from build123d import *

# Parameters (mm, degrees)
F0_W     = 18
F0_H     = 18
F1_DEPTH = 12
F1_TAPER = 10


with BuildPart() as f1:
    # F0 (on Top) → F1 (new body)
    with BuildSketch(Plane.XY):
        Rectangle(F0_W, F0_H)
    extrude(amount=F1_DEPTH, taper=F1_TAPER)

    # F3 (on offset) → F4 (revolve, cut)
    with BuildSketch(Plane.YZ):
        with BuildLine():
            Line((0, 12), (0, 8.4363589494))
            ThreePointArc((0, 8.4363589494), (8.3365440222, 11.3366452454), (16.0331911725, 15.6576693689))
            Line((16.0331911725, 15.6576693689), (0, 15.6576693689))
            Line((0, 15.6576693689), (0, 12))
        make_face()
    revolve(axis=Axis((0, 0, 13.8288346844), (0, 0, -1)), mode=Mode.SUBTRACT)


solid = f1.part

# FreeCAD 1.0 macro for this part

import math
import FreeCAD as App
import Part
import Sketcher
Q = App.Units.Quantity


def add_polygon(sketch, points):
    """Adds a closed chain of lines whose ends are joined by coincident constraints."""
    first, n = sketch.GeometryCount, len(points)
    for a, b in zip(points, points[1:] + points[:1]):
        sketch.addGeometry(Part.LineSegment(App.Vector(*a, 0), App.Vector(*b, 0)), False)
    for i in range(n):
        sketch.addConstraint(Sketcher.Constraint("Coincident", first + i, 2, first + (i + 1) % n, 1))

doc = App.newDocument("Part")
body = doc.addObject("PartDesign::Body", "Body")

# Sketch on XY plane
sketch1 = body.newObject("Sketcher::SketchObject", "Sketch")
sketch1.AttachmentSupport = (doc.getObject("XY_Plane"), [""])
sketch1.MapMode = "FlatFace"
add_polygon(sketch1, [(-9, 9), (-9, -9), (9, -9), (9, 9)])  # lines 0-3
sketch1.addConstraint(Sketcher.Constraint("Vertical", 0))
sketch1.addConstraint(Sketcher.Constraint("Horizontal", 1))
sketch1.addConstraint(Sketcher.Constraint("Vertical", 2))
sketch1.addConstraint(Sketcher.Constraint("Horizontal", 3))
sketch1.addConstraint(Sketcher.Constraint("Symmetric", 0, 2, 2, 2, -1, 1))
sketch1.addConstraint(Sketcher.Constraint("Equal", 3, 0))
sketch1.addConstraint(Sketcher.Constraint("DistanceX", 1, 1, 1, 2, Q("18 mm")))
pad1 = body.newObject("PartDesign::Pad", "Pad")
pad1.Profile = sketch1
pad1.Length = 12
pad1.TaperAngle = -10

# Sketch on YZ plane
sketch2 = body.newObject("Sketcher::SketchObject", "Sketch001")
sketch2.AttachmentSupport = (doc.getObject("YZ_Plane"), [""])
sketch2.MapMode = "FlatFace"
sketch2.addGeometry(Part.ArcOfCircle(Part.Circle(App.Vector(-12, 57, 0), App.Vector(0, 0, 1), 50), math.radians(-76), math.radians(-56)), False)
sketch2.addGeometry(Part.LineSegment(App.Vector(16, 16, 0), App.Vector(0, 16, 0)), False)
sketch2.addGeometry(Part.LineSegment(App.Vector(0, 16, 0), App.Vector(0, 8, 0)), False)
sketch2.addConstraint(Sketcher.Constraint("Coincident", 0, 2, 1, 1))
sketch2.addConstraint(Sketcher.Constraint("Coincident", 1, 2, 2, 1))
sketch2.addConstraint(Sketcher.Constraint("Coincident", 2, 2, 0, 1))
sketch2.addConstraint(Sketcher.Constraint("Horizontal", 1))
sketch2.addConstraint(Sketcher.Constraint("Vertical", 2))
sketch2.addConstraint(Sketcher.Constraint("PointOnObject", 1, 2, -2))
sketch2.addConstraint(Sketcher.Constraint("Radius", 0, Q("50 mm")))
sketch2.addConstraint(Sketcher.Constraint("DistanceX", 1, 2, 1, 1, Q("16.033191 mm")))
sketch2.addConstraint(Sketcher.Constraint("DistanceY", 2, 2, 2, 1, Q("7.22131 mm")))
sketch2.addConstraint(Sketcher.Constraint("DistanceY", -1, 1, 0, 2, Q("15.657669 mm")))
groove = body.newObject("PartDesign::Groove", "Groove")
groove.Profile = sketch2
groove.ReferenceAxis = (sketch2, ["V_Axis"])
groove.Angle = 360

doc.recompute()
